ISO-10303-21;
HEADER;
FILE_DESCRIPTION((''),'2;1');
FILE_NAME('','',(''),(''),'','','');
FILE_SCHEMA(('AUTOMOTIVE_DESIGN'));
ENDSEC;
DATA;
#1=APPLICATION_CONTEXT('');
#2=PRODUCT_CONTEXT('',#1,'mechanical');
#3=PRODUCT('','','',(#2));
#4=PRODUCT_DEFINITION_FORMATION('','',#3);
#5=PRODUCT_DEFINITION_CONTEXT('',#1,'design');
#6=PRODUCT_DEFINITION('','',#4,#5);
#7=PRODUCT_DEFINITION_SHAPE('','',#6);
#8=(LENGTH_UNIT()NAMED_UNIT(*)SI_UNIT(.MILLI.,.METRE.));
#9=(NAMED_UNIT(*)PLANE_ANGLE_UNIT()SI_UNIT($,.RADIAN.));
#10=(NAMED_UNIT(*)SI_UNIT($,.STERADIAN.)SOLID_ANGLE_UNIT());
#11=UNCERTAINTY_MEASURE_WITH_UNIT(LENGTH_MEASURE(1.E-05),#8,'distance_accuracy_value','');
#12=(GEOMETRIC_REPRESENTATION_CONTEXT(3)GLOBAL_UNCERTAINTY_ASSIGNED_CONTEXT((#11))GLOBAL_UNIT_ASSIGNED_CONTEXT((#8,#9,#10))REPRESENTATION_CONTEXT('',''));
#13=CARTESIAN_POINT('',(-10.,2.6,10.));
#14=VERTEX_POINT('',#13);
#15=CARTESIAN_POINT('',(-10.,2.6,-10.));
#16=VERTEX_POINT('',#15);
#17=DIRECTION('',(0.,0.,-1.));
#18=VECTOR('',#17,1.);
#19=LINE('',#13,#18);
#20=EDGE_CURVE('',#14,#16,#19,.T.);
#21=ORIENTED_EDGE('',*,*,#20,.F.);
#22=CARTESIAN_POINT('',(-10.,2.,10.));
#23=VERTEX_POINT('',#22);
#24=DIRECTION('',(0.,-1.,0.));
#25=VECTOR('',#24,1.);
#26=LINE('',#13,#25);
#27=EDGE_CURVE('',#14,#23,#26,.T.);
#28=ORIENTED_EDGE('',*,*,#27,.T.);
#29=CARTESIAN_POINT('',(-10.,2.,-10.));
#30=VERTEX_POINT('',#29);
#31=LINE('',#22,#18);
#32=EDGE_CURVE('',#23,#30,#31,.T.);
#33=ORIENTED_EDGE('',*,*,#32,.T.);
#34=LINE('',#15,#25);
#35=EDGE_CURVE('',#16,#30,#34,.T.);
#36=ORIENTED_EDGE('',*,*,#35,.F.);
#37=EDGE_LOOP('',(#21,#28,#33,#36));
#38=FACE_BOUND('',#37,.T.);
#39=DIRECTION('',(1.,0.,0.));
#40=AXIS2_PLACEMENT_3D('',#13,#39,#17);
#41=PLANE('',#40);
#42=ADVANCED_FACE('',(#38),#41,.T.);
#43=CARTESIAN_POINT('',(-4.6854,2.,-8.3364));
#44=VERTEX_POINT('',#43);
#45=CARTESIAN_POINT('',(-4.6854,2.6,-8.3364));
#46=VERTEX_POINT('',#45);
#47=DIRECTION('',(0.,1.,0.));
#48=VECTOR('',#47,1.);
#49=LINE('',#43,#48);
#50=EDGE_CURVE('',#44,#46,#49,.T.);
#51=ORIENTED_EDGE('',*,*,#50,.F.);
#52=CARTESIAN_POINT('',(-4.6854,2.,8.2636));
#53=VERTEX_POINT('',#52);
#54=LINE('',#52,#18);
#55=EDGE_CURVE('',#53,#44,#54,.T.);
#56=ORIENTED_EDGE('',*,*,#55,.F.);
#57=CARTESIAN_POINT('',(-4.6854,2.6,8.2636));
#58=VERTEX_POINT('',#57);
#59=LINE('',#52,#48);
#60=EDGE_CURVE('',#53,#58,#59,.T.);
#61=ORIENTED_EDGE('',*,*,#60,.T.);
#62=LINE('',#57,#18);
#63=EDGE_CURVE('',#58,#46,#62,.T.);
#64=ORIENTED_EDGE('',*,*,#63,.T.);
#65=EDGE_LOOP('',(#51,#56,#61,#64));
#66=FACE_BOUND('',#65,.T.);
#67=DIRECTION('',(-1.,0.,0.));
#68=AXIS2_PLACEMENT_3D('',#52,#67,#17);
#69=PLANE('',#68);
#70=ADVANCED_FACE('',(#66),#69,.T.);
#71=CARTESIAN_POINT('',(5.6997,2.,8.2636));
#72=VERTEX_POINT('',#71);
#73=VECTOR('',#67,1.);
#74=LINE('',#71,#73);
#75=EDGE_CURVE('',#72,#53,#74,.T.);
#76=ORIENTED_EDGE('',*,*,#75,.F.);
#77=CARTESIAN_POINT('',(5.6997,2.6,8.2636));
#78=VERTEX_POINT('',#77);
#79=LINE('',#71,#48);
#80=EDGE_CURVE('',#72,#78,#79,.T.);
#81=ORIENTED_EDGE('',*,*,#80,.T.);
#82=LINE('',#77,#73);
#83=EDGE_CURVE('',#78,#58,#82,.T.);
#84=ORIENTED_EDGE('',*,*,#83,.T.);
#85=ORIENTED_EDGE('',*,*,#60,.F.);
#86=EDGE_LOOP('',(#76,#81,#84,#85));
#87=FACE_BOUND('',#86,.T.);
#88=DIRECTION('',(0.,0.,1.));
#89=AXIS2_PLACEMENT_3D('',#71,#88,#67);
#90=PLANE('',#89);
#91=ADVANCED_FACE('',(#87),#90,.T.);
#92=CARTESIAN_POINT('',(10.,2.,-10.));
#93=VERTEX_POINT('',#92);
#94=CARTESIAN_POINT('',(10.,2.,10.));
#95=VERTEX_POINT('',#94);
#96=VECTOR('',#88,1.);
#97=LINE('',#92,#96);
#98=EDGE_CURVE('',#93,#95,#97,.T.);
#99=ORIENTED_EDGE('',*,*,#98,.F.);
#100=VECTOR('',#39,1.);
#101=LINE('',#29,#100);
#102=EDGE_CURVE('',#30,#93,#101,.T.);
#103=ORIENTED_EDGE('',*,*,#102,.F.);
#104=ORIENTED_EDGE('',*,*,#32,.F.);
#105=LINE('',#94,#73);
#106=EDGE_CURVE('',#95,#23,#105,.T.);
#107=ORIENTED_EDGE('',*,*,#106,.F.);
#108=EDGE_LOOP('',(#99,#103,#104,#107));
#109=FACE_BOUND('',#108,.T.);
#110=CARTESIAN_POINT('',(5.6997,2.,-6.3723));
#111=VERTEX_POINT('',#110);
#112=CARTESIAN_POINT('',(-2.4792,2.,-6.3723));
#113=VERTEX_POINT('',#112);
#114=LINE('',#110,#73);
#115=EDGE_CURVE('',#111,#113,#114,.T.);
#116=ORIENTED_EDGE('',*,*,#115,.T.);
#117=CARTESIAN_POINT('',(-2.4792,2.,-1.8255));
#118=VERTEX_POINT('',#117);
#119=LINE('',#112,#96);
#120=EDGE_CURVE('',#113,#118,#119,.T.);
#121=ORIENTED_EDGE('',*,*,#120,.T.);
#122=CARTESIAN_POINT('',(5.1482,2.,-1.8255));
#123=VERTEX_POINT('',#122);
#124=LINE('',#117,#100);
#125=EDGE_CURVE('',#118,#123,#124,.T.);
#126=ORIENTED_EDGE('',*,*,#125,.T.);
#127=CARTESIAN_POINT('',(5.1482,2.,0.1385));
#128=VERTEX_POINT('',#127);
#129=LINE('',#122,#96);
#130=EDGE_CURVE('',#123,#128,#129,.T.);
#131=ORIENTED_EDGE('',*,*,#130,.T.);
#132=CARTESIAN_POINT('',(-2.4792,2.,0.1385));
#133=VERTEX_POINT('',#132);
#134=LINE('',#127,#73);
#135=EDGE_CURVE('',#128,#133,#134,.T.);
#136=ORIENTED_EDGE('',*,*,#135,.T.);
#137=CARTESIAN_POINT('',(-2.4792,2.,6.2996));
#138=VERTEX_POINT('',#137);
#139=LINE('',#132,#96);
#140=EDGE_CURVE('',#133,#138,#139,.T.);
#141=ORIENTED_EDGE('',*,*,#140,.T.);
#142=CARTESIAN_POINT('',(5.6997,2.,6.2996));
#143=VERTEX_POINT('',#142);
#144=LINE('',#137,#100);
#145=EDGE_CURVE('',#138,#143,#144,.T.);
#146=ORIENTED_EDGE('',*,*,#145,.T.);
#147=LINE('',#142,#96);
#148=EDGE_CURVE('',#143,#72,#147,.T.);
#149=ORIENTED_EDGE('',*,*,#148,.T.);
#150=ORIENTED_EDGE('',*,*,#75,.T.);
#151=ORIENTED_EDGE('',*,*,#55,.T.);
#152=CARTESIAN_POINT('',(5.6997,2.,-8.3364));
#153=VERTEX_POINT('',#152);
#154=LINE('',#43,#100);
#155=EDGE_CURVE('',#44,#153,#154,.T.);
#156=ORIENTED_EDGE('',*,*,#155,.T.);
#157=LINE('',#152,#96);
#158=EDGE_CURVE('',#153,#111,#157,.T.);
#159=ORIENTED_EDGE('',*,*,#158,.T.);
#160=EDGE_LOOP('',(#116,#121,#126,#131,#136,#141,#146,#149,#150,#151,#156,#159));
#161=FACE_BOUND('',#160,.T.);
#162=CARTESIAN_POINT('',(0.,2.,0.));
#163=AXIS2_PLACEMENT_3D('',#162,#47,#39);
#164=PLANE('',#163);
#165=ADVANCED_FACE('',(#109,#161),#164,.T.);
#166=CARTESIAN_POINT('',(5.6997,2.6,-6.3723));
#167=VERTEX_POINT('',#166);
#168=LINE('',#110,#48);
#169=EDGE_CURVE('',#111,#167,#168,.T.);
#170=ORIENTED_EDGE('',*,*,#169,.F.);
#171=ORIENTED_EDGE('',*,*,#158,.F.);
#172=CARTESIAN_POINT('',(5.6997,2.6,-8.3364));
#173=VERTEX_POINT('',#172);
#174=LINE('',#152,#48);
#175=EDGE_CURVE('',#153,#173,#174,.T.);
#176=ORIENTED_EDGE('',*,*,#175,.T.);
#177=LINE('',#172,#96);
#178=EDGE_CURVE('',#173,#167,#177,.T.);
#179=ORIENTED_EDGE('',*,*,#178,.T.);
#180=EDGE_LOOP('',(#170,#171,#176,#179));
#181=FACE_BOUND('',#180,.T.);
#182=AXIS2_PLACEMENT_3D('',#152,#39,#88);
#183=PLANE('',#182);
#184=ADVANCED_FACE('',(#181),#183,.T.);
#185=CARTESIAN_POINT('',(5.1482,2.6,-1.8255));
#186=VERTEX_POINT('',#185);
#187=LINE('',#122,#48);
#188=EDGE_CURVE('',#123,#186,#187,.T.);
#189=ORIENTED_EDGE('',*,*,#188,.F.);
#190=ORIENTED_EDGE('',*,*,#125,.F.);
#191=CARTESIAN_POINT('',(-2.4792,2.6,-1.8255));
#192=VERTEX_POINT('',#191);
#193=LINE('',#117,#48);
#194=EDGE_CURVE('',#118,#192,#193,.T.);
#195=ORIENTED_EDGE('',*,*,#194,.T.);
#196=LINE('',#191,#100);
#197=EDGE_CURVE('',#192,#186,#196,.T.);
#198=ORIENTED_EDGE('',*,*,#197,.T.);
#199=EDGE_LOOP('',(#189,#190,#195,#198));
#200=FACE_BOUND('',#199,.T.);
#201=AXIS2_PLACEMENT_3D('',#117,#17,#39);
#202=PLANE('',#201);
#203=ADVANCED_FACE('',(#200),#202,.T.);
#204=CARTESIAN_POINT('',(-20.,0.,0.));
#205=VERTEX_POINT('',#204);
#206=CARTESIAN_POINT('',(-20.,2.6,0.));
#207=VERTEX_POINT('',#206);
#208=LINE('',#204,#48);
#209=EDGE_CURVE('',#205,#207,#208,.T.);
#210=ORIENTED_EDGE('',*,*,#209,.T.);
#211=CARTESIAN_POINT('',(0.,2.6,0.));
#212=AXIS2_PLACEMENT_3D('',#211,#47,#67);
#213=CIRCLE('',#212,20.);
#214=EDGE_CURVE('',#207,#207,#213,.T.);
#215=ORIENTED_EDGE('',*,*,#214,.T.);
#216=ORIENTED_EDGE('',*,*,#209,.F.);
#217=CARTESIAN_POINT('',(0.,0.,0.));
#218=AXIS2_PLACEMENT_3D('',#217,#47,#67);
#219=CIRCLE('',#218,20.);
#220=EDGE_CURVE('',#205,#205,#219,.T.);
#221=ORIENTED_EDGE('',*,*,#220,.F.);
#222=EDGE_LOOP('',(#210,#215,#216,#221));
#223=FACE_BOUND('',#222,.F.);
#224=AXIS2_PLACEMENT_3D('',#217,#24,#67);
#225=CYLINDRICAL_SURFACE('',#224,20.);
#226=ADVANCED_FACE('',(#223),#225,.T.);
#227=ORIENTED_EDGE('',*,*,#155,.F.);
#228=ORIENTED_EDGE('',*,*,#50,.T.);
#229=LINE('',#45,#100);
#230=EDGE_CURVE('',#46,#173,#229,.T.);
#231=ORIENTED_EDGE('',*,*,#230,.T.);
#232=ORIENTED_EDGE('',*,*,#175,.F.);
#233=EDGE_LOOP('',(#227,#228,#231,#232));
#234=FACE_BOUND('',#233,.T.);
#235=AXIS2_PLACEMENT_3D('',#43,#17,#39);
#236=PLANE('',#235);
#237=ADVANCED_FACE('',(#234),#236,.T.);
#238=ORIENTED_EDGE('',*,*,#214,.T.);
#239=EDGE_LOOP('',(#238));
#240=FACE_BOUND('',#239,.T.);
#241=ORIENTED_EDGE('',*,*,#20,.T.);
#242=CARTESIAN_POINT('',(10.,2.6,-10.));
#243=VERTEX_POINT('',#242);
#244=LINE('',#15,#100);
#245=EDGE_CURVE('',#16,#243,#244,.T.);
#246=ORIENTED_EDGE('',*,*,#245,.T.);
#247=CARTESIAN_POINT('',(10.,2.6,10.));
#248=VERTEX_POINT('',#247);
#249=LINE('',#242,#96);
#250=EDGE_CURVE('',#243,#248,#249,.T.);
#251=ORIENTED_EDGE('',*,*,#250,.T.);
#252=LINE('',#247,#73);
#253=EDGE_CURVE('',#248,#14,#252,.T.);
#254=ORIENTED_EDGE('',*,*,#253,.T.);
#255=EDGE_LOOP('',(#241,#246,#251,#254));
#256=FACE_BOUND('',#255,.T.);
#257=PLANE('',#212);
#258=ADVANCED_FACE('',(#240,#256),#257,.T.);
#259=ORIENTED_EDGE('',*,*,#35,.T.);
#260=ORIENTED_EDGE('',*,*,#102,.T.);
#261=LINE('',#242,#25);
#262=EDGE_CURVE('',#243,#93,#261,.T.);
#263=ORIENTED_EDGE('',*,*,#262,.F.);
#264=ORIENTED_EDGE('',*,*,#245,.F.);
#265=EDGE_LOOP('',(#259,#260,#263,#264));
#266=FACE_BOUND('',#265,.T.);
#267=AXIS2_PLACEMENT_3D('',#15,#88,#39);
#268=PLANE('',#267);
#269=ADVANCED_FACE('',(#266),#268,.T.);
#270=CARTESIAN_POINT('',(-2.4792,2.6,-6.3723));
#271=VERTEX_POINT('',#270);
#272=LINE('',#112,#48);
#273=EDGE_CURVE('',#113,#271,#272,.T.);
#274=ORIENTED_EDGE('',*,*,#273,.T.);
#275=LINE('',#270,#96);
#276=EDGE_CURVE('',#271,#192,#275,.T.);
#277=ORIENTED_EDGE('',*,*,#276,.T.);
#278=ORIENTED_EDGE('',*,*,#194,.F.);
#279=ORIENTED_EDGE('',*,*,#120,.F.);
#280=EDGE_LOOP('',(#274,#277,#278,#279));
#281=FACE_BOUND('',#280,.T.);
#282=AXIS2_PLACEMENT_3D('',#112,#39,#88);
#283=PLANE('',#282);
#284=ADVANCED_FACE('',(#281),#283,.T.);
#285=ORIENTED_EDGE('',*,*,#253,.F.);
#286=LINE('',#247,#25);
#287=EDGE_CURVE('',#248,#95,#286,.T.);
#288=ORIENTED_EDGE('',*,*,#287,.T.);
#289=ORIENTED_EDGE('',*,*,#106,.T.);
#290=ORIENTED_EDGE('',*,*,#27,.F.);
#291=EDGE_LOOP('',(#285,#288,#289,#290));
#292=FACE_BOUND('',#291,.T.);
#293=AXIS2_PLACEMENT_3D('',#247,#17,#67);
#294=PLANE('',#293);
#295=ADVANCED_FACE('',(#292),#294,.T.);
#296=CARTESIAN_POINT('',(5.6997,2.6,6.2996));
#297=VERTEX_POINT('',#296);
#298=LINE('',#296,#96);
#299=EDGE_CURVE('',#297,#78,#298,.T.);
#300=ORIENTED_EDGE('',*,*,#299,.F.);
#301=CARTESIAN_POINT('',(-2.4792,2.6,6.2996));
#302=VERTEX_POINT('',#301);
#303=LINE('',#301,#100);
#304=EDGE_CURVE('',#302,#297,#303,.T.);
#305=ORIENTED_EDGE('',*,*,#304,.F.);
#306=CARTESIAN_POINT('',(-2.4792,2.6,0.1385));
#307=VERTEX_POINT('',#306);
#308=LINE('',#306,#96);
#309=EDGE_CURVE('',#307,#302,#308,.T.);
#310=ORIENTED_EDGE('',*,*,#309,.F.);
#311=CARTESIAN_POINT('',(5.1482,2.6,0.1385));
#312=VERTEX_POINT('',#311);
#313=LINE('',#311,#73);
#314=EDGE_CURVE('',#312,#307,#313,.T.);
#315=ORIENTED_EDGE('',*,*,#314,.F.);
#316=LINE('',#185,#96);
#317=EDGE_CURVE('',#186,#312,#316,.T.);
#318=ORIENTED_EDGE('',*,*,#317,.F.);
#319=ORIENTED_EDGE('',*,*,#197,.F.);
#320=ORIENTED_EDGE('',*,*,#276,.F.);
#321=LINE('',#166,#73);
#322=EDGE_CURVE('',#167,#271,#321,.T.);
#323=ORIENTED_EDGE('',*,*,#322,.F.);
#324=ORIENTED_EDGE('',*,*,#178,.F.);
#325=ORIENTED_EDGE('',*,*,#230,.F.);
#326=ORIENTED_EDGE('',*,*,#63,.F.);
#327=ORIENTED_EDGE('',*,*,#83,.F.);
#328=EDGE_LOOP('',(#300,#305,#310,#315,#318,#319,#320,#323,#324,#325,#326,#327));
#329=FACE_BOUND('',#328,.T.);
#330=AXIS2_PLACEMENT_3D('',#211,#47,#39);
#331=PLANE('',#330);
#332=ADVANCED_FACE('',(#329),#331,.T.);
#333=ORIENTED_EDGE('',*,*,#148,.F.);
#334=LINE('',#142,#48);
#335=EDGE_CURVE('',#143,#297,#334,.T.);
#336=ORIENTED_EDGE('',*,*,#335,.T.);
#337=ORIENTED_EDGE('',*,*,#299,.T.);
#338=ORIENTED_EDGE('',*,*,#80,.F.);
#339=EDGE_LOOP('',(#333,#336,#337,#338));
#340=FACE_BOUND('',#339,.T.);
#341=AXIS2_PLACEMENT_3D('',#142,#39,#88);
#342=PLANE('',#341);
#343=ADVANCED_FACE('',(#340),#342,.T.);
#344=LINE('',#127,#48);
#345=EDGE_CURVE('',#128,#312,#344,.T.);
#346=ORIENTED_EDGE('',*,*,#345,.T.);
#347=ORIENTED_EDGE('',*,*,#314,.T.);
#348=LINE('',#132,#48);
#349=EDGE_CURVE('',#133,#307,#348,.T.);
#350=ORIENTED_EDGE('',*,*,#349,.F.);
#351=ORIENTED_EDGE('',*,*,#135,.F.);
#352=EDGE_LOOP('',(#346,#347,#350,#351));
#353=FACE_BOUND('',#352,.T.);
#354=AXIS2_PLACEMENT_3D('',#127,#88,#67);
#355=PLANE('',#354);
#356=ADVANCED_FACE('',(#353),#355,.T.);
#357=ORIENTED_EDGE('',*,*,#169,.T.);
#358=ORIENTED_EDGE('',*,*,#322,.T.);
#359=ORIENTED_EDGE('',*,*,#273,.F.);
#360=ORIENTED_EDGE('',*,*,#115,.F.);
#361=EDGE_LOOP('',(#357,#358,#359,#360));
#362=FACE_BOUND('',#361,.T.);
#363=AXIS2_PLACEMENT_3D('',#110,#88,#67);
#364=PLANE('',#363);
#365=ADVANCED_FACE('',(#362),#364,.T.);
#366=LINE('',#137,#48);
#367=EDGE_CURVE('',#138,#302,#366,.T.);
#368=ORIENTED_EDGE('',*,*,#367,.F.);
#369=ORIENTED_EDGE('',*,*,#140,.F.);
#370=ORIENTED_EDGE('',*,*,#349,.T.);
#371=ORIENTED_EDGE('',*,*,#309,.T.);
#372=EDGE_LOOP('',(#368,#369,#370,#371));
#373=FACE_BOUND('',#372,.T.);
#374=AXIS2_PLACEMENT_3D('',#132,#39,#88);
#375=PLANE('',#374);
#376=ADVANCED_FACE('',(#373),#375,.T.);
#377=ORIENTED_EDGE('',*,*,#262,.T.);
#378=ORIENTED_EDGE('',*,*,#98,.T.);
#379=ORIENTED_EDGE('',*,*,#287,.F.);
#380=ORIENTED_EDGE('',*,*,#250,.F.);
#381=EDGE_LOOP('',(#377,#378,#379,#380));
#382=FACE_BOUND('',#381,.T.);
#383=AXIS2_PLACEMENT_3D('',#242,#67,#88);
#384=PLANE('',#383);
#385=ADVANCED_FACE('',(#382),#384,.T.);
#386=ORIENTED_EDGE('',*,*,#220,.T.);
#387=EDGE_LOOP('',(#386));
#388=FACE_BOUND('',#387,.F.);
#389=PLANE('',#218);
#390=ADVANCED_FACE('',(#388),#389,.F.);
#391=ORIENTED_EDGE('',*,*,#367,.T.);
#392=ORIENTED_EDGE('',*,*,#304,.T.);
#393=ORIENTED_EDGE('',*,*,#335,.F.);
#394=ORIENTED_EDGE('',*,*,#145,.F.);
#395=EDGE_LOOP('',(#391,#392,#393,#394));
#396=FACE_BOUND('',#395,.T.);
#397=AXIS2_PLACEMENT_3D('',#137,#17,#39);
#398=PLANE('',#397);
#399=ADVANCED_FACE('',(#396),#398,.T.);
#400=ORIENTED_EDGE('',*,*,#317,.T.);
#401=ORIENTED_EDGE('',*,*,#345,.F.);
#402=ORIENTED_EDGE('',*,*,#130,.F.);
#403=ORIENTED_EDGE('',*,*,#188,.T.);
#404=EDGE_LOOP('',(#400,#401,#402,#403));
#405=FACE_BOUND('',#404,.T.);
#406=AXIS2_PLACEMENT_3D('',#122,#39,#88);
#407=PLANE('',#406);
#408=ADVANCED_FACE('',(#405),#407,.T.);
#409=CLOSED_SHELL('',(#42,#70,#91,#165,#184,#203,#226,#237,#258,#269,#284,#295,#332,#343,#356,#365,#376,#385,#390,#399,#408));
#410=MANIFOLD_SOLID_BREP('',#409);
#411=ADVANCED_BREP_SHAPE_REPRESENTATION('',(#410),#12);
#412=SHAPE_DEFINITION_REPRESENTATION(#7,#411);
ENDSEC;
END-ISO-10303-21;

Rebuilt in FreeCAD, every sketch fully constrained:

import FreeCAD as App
import Part
import Sketcher

V = App.Vector
Q = App.Units.Quantity


def add_polygon(sketch, points):
    """Adds a closed chain of lines whose ends are joined by coincident constraints."""
    first, n = sketch.GeometryCount, len(points)
    for a, b in zip(points, points[1:] + points[:1]):
        sketch.addGeometry(Part.LineSegment(App.Vector(*a, 0), App.Vector(*b, 0)), False)
    for i in range(n):
        sketch.addConstraint(Sketcher.Constraint("Coincident", first + i, 2, first + (i + 1) % n, 1))

doc = App.newDocument("Part")
body = doc.addObject("PartDesign::Body", "Body")

sketch1 = body.newObject("Sketcher::SketchObject", "Sketch")
sketch1.AttachmentSupport = (doc.getObject("XZ_Plane"), [""])
sketch1.MapMode = "FlatFace"
sketch1.addGeometry(Part.Circle(V(0, 0, 0), V(0, 0, 1), 20), False)
sketch1.addConstraint([
    Sketcher.Constraint("Coincident", 0, 3, -1, 1),
    Sketcher.Constraint("Diameter", 0, Q("40 mm")),
])
pad1 = body.newObject("PartDesign::Pad", "Pad")
pad1.Profile = sketch1
pad1.Length = 2.6
pad1.Reversed = True

sketch2 = body.newObject("Sketcher::SketchObject", "Sketch001")
sketch2.AttachmentSupport = (doc.getObject("XZ_Plane"), [""])
sketch2.MapMode = "FlatFace"
sketch2.AttachmentOffset = App.Placement(V(0, 0, -2.6), App.Rotation())
add_polygon(sketch2, [(-10, -10), (-10, 10), (10, 10), (10, -10)])
sketch2.addConstraint([
    Sketcher.Constraint("Vertical", 0),
    Sketcher.Constraint("Horizontal", 1),
    Sketcher.Constraint("Vertical", 2),
    Sketcher.Constraint("Horizontal", 3),
    Sketcher.Constraint("Symmetric", 0, 2, 2, 2, -1, 1),
    Sketcher.Constraint("Equal", 3, 0),
    Sketcher.Constraint("DistanceX", 1, 1, 1, 2, Q("20 mm")),
])
pocket1 = body.newObject("PartDesign::Pocket", "Pocket")
pocket1.Profile = sketch2
pocket1.Length = 0.6
pocket1.Reversed = True

sketch3 = body.newObject("Sketcher::SketchObject", "Sketch002")
sketch3.AttachmentSupport = (doc.getObject("XZ_Plane"), [""])
sketch3.MapMode = "FlatFace"
sketch3.AttachmentOffset = App.Placement(V(0, 0, -2), App.Rotation())
add_polygon(sketch3, [(-4.7, -8.3), (-4.7, 8.3), (5.7, 8.3), (5.7, 6.3), (-2.5, 6.3), (-2.5, 0.1), (5.1, 0.1), (5.1, -1.8), (-2.5, -1.8), (-2.5, -6.4), (5.7, -6.4), (5.7, -8.3)])
sketch3.addConstraint([
    Sketcher.Constraint("Vertical", 0),
    Sketcher.Constraint("Horizontal", 1),
    Sketcher.Constraint("Vertical", 2),
    Sketcher.Constraint("Horizontal", 3),
    Sketcher.Constraint("Vertical", 4),
    Sketcher.Constraint("Horizontal", 5),
    Sketcher.Constraint("Vertical", 6),
    Sketcher.Constraint("Horizontal", 7),
    Sketcher.Constraint("Vertical", 8),
    Sketcher.Constraint("Horizontal", 9),
    Sketcher.Constraint("Vertical", 10),
    Sketcher.Constraint("Horizontal", 11),
    Sketcher.Constraint("Vertical", 4, 2, 7, 2),
    Sketcher.Constraint("Vertical", 2, 2, 9, 2),
    Sketcher.Constraint("Equal", 2, 6),
    Sketcher.Constraint("Equal", 6, 10),
    Sketcher.Constraint("DistanceY", 0, 1, 0, 2, Q("16.6 mm")),
    Sketcher.Constraint("DistanceX", 1, 1, 1, 2, Q("10.385 mm")),
    Sketcher.Constraint("DistanceX", 3, 2, 3, 1, Q("8.179 mm")),
    Sketcher.Constraint("DistanceY", 2, 2, 2, 1, Q("1.964 mm")),
    Sketcher.Constraint("DistanceY", 4, 2, 4, 1, Q("6.161 mm")),
    Sketcher.Constraint("DistanceX", 5, 1, 5, 2, Q("7.6274 mm")),
    Sketcher.Constraint("DistanceX", 0, 2, -1, 1, Q("4.6854 mm")),
    Sketcher.Constraint("DistanceY", -1, 1, 0, 2, Q("8.2636 mm")),
])
pad2 = body.newObject("PartDesign::Pad", "Pad001")
pad2.Profile = sketch3
pad2.Length = 0.6
pad2.Reversed = True

doc.recompute()
